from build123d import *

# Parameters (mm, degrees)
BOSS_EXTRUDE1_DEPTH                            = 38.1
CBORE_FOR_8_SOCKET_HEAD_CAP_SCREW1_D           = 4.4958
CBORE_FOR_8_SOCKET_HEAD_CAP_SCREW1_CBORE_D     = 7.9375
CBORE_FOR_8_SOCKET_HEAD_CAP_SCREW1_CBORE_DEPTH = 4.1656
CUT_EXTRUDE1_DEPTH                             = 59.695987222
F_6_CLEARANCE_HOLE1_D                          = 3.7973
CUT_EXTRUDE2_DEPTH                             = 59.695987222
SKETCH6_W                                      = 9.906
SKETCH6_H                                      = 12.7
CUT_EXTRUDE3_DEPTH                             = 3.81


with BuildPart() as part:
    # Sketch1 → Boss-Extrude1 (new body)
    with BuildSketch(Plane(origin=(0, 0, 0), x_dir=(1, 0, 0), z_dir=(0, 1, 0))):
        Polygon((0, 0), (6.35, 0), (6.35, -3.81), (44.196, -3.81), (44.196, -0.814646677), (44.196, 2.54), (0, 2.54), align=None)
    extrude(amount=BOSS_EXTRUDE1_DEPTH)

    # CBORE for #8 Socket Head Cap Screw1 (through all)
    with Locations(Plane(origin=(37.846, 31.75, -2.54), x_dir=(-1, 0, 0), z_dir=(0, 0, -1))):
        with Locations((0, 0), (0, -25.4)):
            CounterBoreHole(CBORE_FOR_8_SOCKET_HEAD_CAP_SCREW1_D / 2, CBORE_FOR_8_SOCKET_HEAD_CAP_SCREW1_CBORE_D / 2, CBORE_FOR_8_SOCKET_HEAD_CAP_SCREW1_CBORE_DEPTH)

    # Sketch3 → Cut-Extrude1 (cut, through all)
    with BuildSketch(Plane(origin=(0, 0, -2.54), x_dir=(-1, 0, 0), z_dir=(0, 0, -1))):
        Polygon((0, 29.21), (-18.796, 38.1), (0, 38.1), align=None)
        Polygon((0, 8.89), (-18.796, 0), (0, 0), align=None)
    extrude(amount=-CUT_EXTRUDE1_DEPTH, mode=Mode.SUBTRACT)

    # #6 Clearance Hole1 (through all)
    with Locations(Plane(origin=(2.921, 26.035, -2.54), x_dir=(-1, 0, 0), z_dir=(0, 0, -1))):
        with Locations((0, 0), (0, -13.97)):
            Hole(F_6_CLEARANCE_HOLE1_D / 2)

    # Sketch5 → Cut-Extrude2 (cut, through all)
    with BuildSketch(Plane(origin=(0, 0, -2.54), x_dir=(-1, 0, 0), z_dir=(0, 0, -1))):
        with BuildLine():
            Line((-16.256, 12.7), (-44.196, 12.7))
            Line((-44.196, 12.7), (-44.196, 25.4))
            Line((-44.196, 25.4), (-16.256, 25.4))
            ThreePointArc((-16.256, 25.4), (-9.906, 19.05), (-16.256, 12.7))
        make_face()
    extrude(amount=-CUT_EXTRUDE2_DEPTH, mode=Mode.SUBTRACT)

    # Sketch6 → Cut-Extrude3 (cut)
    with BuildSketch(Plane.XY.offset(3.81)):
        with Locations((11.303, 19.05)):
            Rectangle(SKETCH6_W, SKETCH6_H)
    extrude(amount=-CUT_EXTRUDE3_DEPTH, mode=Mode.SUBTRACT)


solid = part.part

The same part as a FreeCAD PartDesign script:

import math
import FreeCAD as App
import Part
import Sketcher

V = App.Vector
Q = App.Units.Quantity

doc = App.newDocument("Part")
params = doc.addObject("Spreadsheet::Sheet", "Params")
for row, (alias, value) in enumerate([
    ("sketch1_height", "0.1 in"),
    ("sketch1_width", "0.25 in"),
    ("sketch1_width2", "1.49 in"),
    ("pad1_length", "1.5 in"),
    ("sketch2_diameter", "0.177 in"),
    ("hole_diameter", "0.177 in"),
    ("hole_cbore_diameter", "0.3125 in"),
    ("hole_cbore_depth", "0.164 in"),
    ("sketch3_width", "0.74 in"),
    ("sketch3_height", "0.35 in"),
    ("hole2_diameter", "0.1495 in"),
    ("sketch5_radius", "0.25 in"),
    ("sketch5_width", "1.1 in"),
    ("sketch6_height", "0.5 in"),
    ("sketch6_width", "0.39 in"),
    ("pocket3_length", "0.15 in"),
], start=1):
    params.set(f"A{row}", alias)
    params.set(f"B{row}", "=" + value)
    params.setAlias(f"B{row}", alias)

body = doc.addObject("PartDesign::Body", "Body")

sketch1 = doc.addObject("Sketcher::SketchObject", "Sketch")
body.addObject(sketch1)
sketch1.AttachmentSupport = (doc.XZ_Plane, [""])
sketch1.MapMode = "FlatFace"
sketch1.addGeometry([
    Part.LineSegment(V(0, 0, 0), V(6.3, 0, 0)),
    Part.LineSegment(V(6.3, 0, 0), V(6.3, 3.8, 0)),
    Part.LineSegment(V(6.3, 3.8, 0), V(44.2, 3.8, 0)),
    Part.LineSegment(V(44.2, 3.8, 0), V(44.2, -2.5, 0)),
    Part.LineSegment(V(44.2, -2.5, 0), V(0, -2.5, 0)),
    Part.LineSegment(V(0, -2.5, 0), V(0, 0, 0)),
], False)
sketch1.addConstraint([
    Sketcher.Constraint("Coincident", 0, 2, 1, 1),
    Sketcher.Constraint("Coincident", 1, 2, 2, 1),
    Sketcher.Constraint("Coincident", 2, 2, 3, 1),
    Sketcher.Constraint("Coincident", 3, 2, 4, 1),
    Sketcher.Constraint("Coincident", 4, 2, 5, 1),
    Sketcher.Constraint("Coincident", 5, 2, 0, 1),
    Sketcher.Constraint("Horizontal", 0),
    Sketcher.Constraint("Vertical", 1),
    Sketcher.Constraint("Horizontal", 2),
    Sketcher.Constraint("Vertical", 3),
    Sketcher.Constraint("Horizontal", 4),
    Sketcher.Constraint("Vertical", 5),
    Sketcher.Constraint("Coincident", 5, 2, -1, 1),
    Sketcher.Constraint("Equal", 0, 3),
    Sketcher.Constraint("DistanceY", 5, 1, 5, 2, Q("0.1 in")),
    Sketcher.Constraint("DistanceX", 0, 1, 0, 2, Q("0.25 in")),
    Sketcher.Constraint("DistanceX", 2, 1, 2, 2, Q("1.49 in")),
])
sketch1.setExpression("Constraints[14]", "Params.sketch1_height")
sketch1.setExpression("Constraints[15]", "Params.sketch1_width")
sketch1.setExpression("Constraints[16]", "Params.sketch1_width2")
pad1 = doc.addObject("PartDesign::Pad", "Pad")
body.addObject(pad1)
pad1.Profile = sketch1
pad1.setExpression("Length", "Params.pad1_length")
pad1.Reversed = True

sketch2 = doc.addObject("Sketcher::SketchObject", "Sketch001")
body.addObject(sketch2)
sketch2.AttachmentSupport = (doc.XY_Plane, [""])
sketch2.MapMode = "FlatFace"
sketch2.AttachmentOffset = App.Placement(V(0, 0, -0.1 * 25.4), App.Rotation())
sketch2.addGeometry([
    Part.Circle(V(37.8, 31.8, 0), V(0, 0, 1), 2.2),
    Part.Circle(V(37.8, 6.3, 0), V(0, 0, 1), 2.2),
], False)
sketch2.addConstraint([
    Sketcher.Constraint("Equal", 0, 1),
    Sketcher.Constraint("Vertical", 0, 3, 1, 3),
    Sketcher.Constraint("Diameter", 0, Q("0.177 in")),
    Sketcher.Constraint("DistanceY", 1, 3, 0, 3, Q("1 in")),
    Sketcher.Constraint("DistanceX", -1, 1, 0, 3, Q("1.49 in")),
    Sketcher.Constraint("DistanceY", -1, 1, 0, 3, Q("1.25 in")),
])
sketch2.setExpression("Constraints[2]", "Params.sketch2_diameter")
doc.recompute()
hole = doc.addObject("PartDesign::Hole", "Hole")
body.addObject(hole)
hole.Profile = sketch2
hole.ThreadType = "None"
hole.setExpression("Diameter", "Params.hole_diameter")
hole.DepthType = "ThroughAll"
hole.HoleCutType = "Counterbore"
hole.setExpression("HoleCutDiameter", "Params.hole_cbore_diameter")
hole.setExpression("HoleCutDepth", "Params.hole_cbore_depth")
hole.Reversed = True

sketch3 = doc.addObject("Sketcher::SketchObject", "Sketch002")
body.addObject(sketch3)
sketch3.AttachmentSupport = (doc.XY_Plane, [""])
sketch3.MapMode = "FlatFace"
sketch3.AttachmentOffset = App.Placement(V(0, 0, -0.1 * 25.4), App.Rotation())
sketch3.addGeometry([
    Part.LineSegment(V(19, 38, 0), V(0, 29, 0)),
    Part.LineSegment(V(0, 29, 0), V(0, 38, 0)),
    Part.LineSegment(V(0, 38, 0), V(19, 38, 0)),
    Part.LineSegment(V(0, 9, 0), V(19, 0, 0)),
    Part.LineSegment(V(19, 0, 0), V(0, 0, 0)),
    Part.LineSegment(V(0, 0, 0), V(0, 9, 0)),
], False)
sketch3.addConstraint([
    Sketcher.Constraint("Coincident", 0, 2, 1, 1),
    Sketcher.Constraint("Coincident", 1, 2, 2, 1),
    Sketcher.Constraint("Coincident", 2, 2, 0, 1),
    Sketcher.Constraint("Coincident", 3, 2, 4, 1),
    Sketcher.Constraint("Coincident", 4, 2, 5, 1),
    Sketcher.Constraint("Coincident", 5, 2, 3, 1),
    Sketcher.Constraint("Vertical", 1),
    Sketcher.Constraint("Horizontal", 2),
    Sketcher.Constraint("Horizontal", 4),
    Sketcher.Constraint("Vertical", 5),
    Sketcher.Constraint("Coincident", 4, 2, -1, 1),
    Sketcher.Constraint("PointOnObject", 0, 2, -2),
    Sketcher.Constraint("Vertical", 2, 2, 3, 2),
    Sketcher.Constraint("Equal", 1, 5),
    Sketcher.Constraint("DistanceX", 2, 1, 2, 2, Q("0.74 in")),
    Sketcher.Constraint("DistanceY", 1, 1, 1, 2, Q("0.35 in")),
    Sketcher.Constraint("DistanceY", -1, 1, 1, 2, Q("1.5 in")),
])
sketch3.setExpression("Constraints[14]", "Params.sketch3_width")
sketch3.setExpression("Constraints[15]", "Params.sketch3_height")
pocket1 = doc.addObject("PartDesign::Pocket", "Pocket")
body.addObject(pocket1)
pocket1.Profile = sketch3
pocket1.Type = "ThroughAll"
pocket1.Reversed = True

sketch4 = doc.addObject("Sketcher::SketchObject", "Sketch003")
body.addObject(sketch4)
sketch4.AttachmentSupport = (doc.XY_Plane, [""])
sketch4.MapMode = "FlatFace"
sketch4.AttachmentOffset = App.Placement(V(0, 0, -0.1 * 25.4), App.Rotation())
sketch4.addGeometry([
    Part.Circle(V(2.9, 26, 0), V(0, 0, 1), 1.9),
    Part.Circle(V(2.9, 12.1, 0), V(0, 0, 1), 1.9),
], False)
sketch4.addConstraint([
    Sketcher.Constraint("Equal", 0, 1),
    Sketcher.Constraint("Vertical", 0, 3, 1, 3),
    Sketcher.Constraint("Diameter", 0, Q("0.1495 in")),
    Sketcher.Constraint("DistanceY", 1, 3, 0, 3, Q("0.55 in")),
    Sketcher.Constraint("DistanceX", -1, 1, 0, 3, Q("0.115 in")),
    Sketcher.Constraint("DistanceY", -1, 1, 0, 3, Q("1.025 in")),
])
doc.recompute()
hole2 = doc.addObject("PartDesign::Hole", "Hole001")
body.addObject(hole2)
hole2.Profile = sketch4
hole2.ThreadType = "None"
hole2.setExpression("Diameter", "Params.hole2_diameter")
hole2.DepthType = "ThroughAll"
hole2.Reversed = True

sketch5 = doc.addObject("Sketcher::SketchObject", "Sketch004")
body.addObject(sketch5)
sketch5.AttachmentSupport = (doc.XY_Plane, [""])
sketch5.MapMode = "FlatFace"
sketch5.AttachmentOffset = App.Placement(V(0, 0, -0.1 * 25.4), App.Rotation())
sketch5.addGeometry([
    Part.LineSegment(V(44, 13, 0), V(16, 13, 0)),
    Part.ArcOfCircle(Part.Circle(V(16, 19, 0), V(0, 0, 1), 6), math.radians(90), math.radians(270)),
    Part.LineSegment(V(16, 25, 0), V(44, 25, 0)),
    Part.LineSegment(V(44, 25, 0), V(44, 13, 0)),
], False)
sketch5.addConstraint([
    Sketcher.Constraint("Tangent", 0, 2, 1, 2),
    Sketcher.Constraint("Tangent", 1, 1, 2, 1),
    Sketcher.Constraint("Coincident", 2, 2, 3, 1),
    Sketcher.Constraint("Coincident", 3, 2, 0, 1),
    Sketcher.Constraint("Horizontal", 0),
    Sketcher.Constraint("Horizontal", 2),
    Sketcher.Constraint("Vertical", 3),
    Sketcher.Constraint("Radius", 1, Q("0.25 in")),
    Sketcher.Constraint("DistanceX", 0, 2, 0, 1, Q("1.1 in")),
    Sketcher.Constraint("DistanceY", -1, 1, 1, 1, Q("1 in")),
    Sketcher.Constraint("DistanceX", -1, 1, 1, 3, Q("0.64 in")),
])
sketch5.setExpression("Constraints[7]", "Params.sketch5_radius")
sketch5.setExpression("Constraints[8]", "Params.sketch5_width")
pocket2 = doc.addObject("PartDesign::Pocket", "Pocket001")
body.addObject(pocket2)
pocket2.Profile = sketch5
pocket2.Type = "ThroughAll"
pocket2.Reversed = True

sketch6 = doc.addObject("Sketcher::SketchObject", "Sketch005")
body.addObject(sketch6)
sketch6.AttachmentSupport = (doc.XY_Plane, [""])
sketch6.MapMode = "FlatFace"
sketch6.AttachmentOffset = App.Placement(V(0, 0, 0.15 * 25.4), App.Rotation())
sketch6.addGeometry([
    Part.LineSegment(V(6, 25, 0), V(6, 13, 0)),
    Part.LineSegment(V(6, 13, 0), V(16, 13, 0)),
    Part.LineSegment(V(16, 13, 0), V(16, 25, 0)),
    Part.LineSegment(V(16, 25, 0), V(6, 25, 0)),
], False)
sketch6.addConstraint([
    Sketcher.Constraint("Coincident", 0, 2, 1, 1),
    Sketcher.Constraint("Coincident", 1, 2, 2, 1),
    Sketcher.Constraint("Coincident", 2, 2, 3, 1),
    Sketcher.Constraint("Coincident", 3, 2, 0, 1),
    Sketcher.Constraint("Vertical", 0),
    Sketcher.Constraint("Horizontal", 1),
    Sketcher.Constraint("Vertical", 2),
    Sketcher.Constraint("Horizontal", 3),
    Sketcher.Constraint("DistanceY", 0, 2, 0, 1, Q("0.5 in")),
    Sketcher.Constraint("DistanceY", -1, 1, 2, 2, Q("1 in")),
    Sketcher.Constraint("DistanceX", 1, 1, 1, 2, Q("0.39 in")),
    Sketcher.Constraint("DistanceX", -1, 1, 0, 2, Q("0.25 in")),
])
sketch6.setExpression("Constraints[8]", "Params.sketch6_height")
sketch6.setExpression("Constraints[10]", "Params.sketch6_width")
pocket3 = doc.addObject("PartDesign::Pocket", "Pocket002")
body.addObject(pocket3)
pocket3.Profile = sketch6
pocket3.setExpression("Length", "Params.pocket3_length")

doc.recompute()
